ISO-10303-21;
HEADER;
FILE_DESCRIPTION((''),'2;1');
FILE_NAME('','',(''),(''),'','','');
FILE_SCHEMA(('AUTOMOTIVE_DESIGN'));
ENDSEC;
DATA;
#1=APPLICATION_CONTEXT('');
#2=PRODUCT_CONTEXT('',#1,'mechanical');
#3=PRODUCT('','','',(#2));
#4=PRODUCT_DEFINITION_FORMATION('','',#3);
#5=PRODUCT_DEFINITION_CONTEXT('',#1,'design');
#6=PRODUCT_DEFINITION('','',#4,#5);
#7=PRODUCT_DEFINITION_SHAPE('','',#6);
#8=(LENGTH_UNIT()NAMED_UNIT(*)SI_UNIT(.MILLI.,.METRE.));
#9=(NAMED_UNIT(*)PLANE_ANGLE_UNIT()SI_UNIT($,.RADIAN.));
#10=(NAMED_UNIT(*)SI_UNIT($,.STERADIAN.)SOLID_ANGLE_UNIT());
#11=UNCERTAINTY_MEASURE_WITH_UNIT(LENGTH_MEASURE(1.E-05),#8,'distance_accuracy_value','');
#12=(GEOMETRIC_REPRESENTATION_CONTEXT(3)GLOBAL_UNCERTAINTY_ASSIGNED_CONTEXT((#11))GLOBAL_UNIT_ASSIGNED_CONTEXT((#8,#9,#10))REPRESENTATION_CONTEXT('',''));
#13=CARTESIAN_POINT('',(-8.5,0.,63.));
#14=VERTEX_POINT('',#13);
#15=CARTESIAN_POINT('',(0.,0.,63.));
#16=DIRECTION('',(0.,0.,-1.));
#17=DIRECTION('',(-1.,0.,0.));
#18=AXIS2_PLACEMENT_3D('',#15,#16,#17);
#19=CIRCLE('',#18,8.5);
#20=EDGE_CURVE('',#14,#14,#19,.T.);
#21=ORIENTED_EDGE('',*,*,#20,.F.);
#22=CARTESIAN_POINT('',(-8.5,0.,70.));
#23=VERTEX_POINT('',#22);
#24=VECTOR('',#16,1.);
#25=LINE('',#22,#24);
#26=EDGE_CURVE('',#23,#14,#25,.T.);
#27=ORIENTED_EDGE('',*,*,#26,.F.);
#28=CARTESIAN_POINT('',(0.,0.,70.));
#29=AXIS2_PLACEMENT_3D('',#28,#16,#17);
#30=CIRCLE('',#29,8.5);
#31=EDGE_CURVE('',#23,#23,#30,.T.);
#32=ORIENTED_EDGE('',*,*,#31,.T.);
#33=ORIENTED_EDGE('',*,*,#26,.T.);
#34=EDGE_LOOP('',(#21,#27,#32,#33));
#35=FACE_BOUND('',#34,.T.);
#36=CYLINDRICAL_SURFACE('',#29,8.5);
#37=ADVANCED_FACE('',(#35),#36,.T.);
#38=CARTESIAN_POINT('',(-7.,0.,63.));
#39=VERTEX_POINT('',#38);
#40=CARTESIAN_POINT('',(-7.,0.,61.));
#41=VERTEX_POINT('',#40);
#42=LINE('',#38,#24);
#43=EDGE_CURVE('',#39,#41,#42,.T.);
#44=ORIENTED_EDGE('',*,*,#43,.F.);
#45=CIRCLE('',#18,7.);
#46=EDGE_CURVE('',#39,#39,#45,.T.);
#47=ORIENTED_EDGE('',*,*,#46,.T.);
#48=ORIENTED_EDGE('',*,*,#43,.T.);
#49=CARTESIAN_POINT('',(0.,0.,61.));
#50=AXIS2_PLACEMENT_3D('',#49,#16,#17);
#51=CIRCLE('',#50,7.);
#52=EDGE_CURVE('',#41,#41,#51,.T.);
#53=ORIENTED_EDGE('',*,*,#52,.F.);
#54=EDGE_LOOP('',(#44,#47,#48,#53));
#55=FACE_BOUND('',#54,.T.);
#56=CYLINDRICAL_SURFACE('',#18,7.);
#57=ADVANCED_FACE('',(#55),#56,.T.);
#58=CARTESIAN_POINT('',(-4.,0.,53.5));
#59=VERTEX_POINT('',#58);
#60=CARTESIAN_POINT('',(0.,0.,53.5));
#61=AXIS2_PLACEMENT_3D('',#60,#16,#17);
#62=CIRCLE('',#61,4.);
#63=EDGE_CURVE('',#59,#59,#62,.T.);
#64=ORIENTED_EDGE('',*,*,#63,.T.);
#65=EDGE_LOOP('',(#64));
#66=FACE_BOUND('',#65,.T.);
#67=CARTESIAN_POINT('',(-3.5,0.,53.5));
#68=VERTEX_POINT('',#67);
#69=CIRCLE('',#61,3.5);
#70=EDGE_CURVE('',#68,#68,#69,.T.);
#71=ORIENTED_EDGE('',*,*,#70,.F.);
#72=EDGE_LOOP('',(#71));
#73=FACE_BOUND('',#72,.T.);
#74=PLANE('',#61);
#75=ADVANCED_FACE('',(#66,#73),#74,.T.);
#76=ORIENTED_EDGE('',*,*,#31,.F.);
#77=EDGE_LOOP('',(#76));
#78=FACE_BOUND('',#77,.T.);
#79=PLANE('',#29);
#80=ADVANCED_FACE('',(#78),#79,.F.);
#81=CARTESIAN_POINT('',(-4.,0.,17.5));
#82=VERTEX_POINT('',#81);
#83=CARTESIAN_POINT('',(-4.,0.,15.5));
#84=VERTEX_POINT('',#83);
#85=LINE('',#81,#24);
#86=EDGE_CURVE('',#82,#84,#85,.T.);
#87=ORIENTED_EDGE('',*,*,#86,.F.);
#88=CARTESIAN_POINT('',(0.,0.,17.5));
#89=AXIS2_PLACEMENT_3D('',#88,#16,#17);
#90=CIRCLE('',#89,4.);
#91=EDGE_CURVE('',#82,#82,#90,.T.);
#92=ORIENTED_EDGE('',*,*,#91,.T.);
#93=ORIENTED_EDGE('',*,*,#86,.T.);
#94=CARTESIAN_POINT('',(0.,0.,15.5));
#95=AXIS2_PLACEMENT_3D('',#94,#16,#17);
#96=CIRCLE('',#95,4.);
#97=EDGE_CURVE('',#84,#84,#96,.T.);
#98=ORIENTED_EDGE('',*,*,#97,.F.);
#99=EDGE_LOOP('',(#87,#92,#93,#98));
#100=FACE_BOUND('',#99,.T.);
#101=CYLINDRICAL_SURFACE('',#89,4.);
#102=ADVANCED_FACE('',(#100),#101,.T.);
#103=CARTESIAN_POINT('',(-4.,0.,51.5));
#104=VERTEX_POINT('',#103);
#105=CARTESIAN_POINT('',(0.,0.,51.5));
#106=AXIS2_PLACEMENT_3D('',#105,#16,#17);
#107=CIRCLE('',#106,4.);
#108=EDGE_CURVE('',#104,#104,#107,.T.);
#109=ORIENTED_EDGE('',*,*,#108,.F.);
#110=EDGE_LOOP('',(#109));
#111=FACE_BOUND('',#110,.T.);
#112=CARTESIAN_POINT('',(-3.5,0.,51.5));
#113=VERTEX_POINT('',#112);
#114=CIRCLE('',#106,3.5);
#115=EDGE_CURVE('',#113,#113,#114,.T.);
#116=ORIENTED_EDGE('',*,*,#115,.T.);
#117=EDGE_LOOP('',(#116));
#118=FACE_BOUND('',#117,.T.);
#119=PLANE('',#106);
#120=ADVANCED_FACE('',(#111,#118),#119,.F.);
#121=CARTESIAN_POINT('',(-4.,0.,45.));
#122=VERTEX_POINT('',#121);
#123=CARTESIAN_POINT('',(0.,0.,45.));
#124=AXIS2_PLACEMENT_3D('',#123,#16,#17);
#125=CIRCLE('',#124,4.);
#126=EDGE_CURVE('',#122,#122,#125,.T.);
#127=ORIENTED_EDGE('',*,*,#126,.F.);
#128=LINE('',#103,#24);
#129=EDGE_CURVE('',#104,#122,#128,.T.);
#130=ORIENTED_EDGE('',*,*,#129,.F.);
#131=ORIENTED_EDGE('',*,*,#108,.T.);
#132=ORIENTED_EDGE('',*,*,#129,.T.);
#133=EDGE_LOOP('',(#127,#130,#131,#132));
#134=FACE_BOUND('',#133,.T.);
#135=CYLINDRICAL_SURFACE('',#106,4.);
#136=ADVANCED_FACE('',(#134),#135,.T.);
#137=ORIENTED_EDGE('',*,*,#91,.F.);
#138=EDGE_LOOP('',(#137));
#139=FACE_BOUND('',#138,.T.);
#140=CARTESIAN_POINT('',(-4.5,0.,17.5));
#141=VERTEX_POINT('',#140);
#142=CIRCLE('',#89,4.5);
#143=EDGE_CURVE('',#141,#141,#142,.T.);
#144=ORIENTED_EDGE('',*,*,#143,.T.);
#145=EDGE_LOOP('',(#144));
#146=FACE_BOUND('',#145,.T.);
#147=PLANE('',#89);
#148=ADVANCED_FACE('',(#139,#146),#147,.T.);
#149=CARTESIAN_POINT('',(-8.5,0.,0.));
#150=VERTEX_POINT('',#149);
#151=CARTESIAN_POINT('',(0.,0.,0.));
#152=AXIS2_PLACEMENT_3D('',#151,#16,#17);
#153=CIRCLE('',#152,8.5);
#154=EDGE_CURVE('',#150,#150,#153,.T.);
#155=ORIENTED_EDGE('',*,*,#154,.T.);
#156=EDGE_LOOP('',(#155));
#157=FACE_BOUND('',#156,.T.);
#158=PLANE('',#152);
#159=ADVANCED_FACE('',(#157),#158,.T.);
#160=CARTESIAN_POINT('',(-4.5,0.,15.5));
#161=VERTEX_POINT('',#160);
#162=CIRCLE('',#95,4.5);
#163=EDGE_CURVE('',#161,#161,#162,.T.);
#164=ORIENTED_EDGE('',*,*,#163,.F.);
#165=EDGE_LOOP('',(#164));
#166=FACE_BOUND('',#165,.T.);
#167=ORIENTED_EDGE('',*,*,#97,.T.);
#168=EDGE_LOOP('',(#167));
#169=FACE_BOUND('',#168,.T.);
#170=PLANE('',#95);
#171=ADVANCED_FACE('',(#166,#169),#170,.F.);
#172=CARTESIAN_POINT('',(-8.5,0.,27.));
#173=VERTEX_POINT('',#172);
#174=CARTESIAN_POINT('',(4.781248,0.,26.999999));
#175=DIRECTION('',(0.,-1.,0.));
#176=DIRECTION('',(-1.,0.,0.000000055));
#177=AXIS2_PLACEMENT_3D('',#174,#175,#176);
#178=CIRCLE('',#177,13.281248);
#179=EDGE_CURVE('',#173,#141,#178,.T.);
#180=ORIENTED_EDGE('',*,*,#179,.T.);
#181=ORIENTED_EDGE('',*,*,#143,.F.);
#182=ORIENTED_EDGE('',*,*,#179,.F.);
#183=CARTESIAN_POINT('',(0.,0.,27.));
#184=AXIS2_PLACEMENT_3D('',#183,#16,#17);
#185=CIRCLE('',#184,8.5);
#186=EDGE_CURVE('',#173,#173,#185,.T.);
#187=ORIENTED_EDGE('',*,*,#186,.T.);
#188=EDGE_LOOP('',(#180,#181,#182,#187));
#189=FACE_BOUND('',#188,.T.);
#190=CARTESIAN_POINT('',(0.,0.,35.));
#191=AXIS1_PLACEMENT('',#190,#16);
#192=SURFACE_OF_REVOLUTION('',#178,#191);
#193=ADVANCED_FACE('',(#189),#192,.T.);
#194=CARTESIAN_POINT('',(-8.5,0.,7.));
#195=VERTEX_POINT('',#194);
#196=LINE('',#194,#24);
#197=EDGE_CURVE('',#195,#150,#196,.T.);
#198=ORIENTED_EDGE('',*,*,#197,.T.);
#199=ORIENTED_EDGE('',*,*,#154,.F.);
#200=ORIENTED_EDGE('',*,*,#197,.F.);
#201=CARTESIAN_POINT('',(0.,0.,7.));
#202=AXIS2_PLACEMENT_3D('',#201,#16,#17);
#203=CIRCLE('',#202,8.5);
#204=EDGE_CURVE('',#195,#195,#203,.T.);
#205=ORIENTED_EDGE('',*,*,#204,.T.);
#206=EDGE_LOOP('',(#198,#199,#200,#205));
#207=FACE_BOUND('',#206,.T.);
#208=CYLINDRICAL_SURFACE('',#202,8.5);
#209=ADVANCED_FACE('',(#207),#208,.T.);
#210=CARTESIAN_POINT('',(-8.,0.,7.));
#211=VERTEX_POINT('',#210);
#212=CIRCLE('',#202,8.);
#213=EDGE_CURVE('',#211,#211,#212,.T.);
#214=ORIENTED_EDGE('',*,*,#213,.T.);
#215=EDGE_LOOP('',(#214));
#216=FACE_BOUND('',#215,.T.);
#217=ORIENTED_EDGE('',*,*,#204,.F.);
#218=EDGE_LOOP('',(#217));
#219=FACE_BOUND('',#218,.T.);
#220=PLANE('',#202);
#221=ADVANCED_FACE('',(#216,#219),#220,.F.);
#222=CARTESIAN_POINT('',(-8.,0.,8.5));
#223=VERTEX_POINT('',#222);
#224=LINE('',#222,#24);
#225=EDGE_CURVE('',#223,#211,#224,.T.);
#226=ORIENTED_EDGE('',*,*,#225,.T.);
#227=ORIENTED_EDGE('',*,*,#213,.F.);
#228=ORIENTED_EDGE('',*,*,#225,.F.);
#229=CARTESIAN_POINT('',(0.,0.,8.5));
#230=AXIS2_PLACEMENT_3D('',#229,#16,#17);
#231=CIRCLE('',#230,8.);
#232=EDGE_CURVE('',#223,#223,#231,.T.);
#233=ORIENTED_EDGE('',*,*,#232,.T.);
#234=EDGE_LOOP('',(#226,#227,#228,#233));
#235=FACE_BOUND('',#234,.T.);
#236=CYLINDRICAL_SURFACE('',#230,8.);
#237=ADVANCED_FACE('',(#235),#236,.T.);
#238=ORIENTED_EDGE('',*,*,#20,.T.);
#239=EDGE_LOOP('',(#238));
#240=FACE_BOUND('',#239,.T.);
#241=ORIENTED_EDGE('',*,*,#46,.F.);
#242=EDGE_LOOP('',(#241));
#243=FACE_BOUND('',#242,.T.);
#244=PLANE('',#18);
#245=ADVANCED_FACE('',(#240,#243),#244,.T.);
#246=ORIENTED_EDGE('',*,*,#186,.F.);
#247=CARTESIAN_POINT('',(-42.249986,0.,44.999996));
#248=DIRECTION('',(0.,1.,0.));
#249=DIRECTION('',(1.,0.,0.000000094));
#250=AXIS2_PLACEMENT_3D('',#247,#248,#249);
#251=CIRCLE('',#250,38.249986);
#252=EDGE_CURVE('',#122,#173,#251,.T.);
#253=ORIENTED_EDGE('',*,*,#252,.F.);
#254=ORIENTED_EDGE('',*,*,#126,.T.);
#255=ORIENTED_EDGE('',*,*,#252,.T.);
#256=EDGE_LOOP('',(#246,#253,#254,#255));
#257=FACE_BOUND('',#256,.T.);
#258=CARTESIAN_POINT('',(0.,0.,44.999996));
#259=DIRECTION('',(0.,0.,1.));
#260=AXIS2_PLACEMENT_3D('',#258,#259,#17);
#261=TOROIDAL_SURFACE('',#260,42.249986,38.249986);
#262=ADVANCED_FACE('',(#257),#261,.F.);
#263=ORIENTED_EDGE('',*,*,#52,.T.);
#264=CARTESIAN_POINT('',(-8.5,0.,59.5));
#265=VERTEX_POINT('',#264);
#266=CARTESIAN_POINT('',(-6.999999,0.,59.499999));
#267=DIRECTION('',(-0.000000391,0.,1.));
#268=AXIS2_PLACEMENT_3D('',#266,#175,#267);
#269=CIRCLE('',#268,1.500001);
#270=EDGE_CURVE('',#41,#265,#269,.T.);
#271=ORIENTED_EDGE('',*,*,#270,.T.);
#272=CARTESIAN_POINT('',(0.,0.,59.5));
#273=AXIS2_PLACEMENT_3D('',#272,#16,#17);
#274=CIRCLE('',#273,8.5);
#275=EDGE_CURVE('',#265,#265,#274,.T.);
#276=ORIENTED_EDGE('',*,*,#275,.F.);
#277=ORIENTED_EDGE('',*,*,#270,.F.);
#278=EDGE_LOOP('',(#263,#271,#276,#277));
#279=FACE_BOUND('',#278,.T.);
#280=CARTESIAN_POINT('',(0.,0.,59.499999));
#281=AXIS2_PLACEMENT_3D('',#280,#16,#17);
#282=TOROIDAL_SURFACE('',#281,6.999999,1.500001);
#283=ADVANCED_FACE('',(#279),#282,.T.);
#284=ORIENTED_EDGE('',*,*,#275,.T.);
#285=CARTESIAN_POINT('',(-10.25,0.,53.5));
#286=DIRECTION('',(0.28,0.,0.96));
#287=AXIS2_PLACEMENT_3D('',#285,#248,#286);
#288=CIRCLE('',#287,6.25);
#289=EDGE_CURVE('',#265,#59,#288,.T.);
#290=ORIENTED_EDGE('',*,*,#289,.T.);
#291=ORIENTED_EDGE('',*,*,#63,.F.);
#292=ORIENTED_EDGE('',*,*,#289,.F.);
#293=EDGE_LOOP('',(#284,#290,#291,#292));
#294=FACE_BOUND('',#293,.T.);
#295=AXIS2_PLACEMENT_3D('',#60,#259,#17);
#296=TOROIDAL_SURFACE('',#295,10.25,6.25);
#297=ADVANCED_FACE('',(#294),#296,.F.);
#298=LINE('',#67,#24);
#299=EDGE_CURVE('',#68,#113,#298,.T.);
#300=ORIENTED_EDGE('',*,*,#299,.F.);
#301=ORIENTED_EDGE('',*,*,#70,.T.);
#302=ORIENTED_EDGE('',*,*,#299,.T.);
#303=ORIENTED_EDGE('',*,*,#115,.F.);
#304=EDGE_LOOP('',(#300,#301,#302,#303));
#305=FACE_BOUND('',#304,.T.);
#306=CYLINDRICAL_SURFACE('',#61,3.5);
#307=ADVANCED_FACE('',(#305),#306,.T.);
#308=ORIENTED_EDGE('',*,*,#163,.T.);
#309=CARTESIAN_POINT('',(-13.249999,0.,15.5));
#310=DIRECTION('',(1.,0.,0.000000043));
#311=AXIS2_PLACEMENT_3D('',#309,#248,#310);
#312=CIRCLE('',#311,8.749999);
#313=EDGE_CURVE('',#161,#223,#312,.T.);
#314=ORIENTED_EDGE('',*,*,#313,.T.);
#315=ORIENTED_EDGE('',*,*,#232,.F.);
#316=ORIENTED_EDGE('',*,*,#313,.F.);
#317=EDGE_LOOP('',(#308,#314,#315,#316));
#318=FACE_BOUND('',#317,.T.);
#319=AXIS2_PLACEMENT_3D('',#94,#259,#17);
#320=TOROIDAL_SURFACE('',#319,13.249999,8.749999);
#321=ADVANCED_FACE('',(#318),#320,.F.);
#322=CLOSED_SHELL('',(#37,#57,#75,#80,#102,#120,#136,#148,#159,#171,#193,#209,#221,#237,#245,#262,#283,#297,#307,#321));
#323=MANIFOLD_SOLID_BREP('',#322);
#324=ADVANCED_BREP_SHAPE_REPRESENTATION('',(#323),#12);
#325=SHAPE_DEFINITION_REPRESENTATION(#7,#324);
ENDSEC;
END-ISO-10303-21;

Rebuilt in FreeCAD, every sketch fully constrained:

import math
import FreeCAD as App
import Part
import Sketcher

doc = App.newDocument("Part")
params = doc.addObject("Spreadsheet::Sheet", "Params")
for row, (alias, value) in enumerate([
    ("sketch1_radius", "1.500001 mm"),
    ("sketch1_height", "70 mm"),
    ("sketch1_height2", "7 mm"),
    ("sketch1_height3", "2 mm"),
    ("sketch1_radius2", "6.25 mm"),
    ("revolution_angle", "360 deg"),
], start=1):
    params.set(f"A{row}", alias)
    params.set(f"B{row}", "=" + value)
    params.setAlias(f"B{row}", alias)

body = doc.addObject("PartDesign::Body", "Body")

# Sketch on XZ plane
sketch1 = doc.addObject("Sketcher::SketchObject", "Sketch")
body.addObject(sketch1)
sketch1.AttachmentSupport = (doc.XZ_Plane, [""])
sketch1.MapMode = "FlatFace"
sketch1.addGeometry(Part.LineSegment(App.Vector(-8.5, 0, 0), App.Vector(0, 0, 0)), False)
sketch1.addGeometry(Part.LineSegment(App.Vector(0, 0, 0), App.Vector(0, 70, 0)), False)
sketch1.addGeometry(Part.LineSegment(App.Vector(0, 70, 0), App.Vector(-8.5, 70, 0)), False)
sketch1.addGeometry(Part.LineSegment(App.Vector(-8.5, 70, 0), App.Vector(-8.5, 63, 0)), False)
sketch1.addGeometry(Part.LineSegment(App.Vector(-8.5, 63, 0), App.Vector(-7, 63, 0)), False)
sketch1.addGeometry(Part.LineSegment(App.Vector(-7, 63, 0), App.Vector(-7, 61, 0)), False)
sketch1.addGeometry(Part.ArcOfCircle(Part.Circle(App.Vector(-7, 59.5, 0), App.Vector(0, 0, 1), 1.5), math.radians(90), math.radians(180)), False)
sketch1.addGeometry(Part.ArcOfCircle(Part.Circle(App.Vector(-10.2, 53.5, 0), App.Vector(0, 0, 1), 6.2), math.radians(0), math.radians(74)), False)
sketch1.addGeometry(Part.LineSegment(App.Vector(-4, 53.5, 0), App.Vector(-3.5, 53.5, 0)), False)
sketch1.addGeometry(Part.LineSegment(App.Vector(-3.5, 53.5, 0), App.Vector(-3.5, 51.5, 0)), False)
sketch1.addGeometry(Part.LineSegment(App.Vector(-3.5, 51.5, 0), App.Vector(-4, 51.5, 0)), False)
sketch1.addGeometry(Part.LineSegment(App.Vector(-4, 51.5, 0), App.Vector(-4, 45, 0)), False)
sketch1.addGeometry(Part.ArcOfCircle(Part.Circle(App.Vector(-42.2, 45, 0), App.Vector(0, 0, 1), 38.2), math.radians(-28), math.radians(0)), False)
sketch1.addGeometry(Part.ArcOfCircle(Part.Circle(App.Vector(4.8, 27, 0), App.Vector(0, 0, 1), 13.3), math.radians(180), math.radians(226)), False)
sketch1.addGeometry(Part.LineSegment(App.Vector(-4.5, 17.5, 0), App.Vector(-4, 17.5, 0)), False)
sketch1.addGeometry(Part.LineSegment(App.Vector(-4, 17.5, 0), App.Vector(-4, 15.5, 0)), False)
sketch1.addGeometry(Part.LineSegment(App.Vector(-4, 15.5, 0), App.Vector(-4.5, 15.5, 0)), False)
sketch1.addGeometry(Part.ArcOfCircle(Part.Circle(App.Vector(-13.2, 15.5, 0), App.Vector(0, 0, 1), 8.7), math.radians(-53), math.radians(0)), False)
sketch1.addGeometry(Part.LineSegment(App.Vector(-8, 8.5, 0), App.Vector(-8, 7, 0)), False)
sketch1.addGeometry(Part.LineSegment(App.Vector(-8, 7, 0), App.Vector(-8.5, 7, 0)), False)
sketch1.addGeometry(Part.LineSegment(App.Vector(-8.5, 7, 0), App.Vector(-8.5, 0, 0)), False)
sketch1.addConstraint(Sketcher.Constraint("Coincident", 0, 2, 1, 1))
sketch1.addConstraint(Sketcher.Constraint("Coincident", 1, 2, 2, 1))
sketch1.addConstraint(Sketcher.Constraint("Coincident", 2, 2, 3, 1))
sketch1.addConstraint(Sketcher.Constraint("Coincident", 3, 2, 4, 1))
sketch1.addConstraint(Sketcher.Constraint("Coincident", 4, 2, 5, 1))
sketch1.addConstraint(Sketcher.Constraint("Coincident", 5, 2, 6, 1))
sketch1.addConstraint(Sketcher.Constraint("Coincident", 6, 2, 7, 2))
sketch1.addConstraint(Sketcher.Constraint("Coincident", 7, 1, 8, 1))
sketch1.addConstraint(Sketcher.Constraint("Coincident", 8, 2, 9, 1))
sketch1.addConstraint(Sketcher.Constraint("Coincident", 9, 2, 10, 1))
sketch1.addConstraint(Sketcher.Constraint("Coincident", 10, 2, 11, 1))
sketch1.addConstraint(Sketcher.Constraint("Tangent", 11, 2, 12, 2))
sketch1.addConstraint(Sketcher.Constraint("Coincident", 12, 1, 13, 1))
sketch1.addConstraint(Sketcher.Constraint("Coincident", 13, 2, 14, 1))
sketch1.addConstraint(Sketcher.Constraint("Coincident", 14, 2, 15, 1))
sketch1.addConstraint(Sketcher.Constraint("Coincident", 15, 2, 16, 1))
sketch1.addConstraint(Sketcher.Constraint("Coincident", 16, 2, 17, 2))
sketch1.addConstraint(Sketcher.Constraint("Coincident", 17, 1, 18, 1))
sketch1.addConstraint(Sketcher.Constraint("Coincident", 18, 2, 19, 1))
sketch1.addConstraint(Sketcher.Constraint("Coincident", 19, 2, 20, 1))
sketch1.addConstraint(Sketcher.Constraint("Coincident", 20, 2, 0, 1))
sketch1.addConstraint(Sketcher.Constraint("Horizontal", 0))
sketch1.addConstraint(Sketcher.Constraint("Vertical", 1))
sketch1.addConstraint(Sketcher.Constraint("Horizontal", 2))
sketch1.addConstraint(Sketcher.Constraint("Vertical", 3))
sketch1.addConstraint(Sketcher.Constraint("Horizontal", 4))
sketch1.addConstraint(Sketcher.Constraint("Vertical", 5))
sketch1.addConstraint(Sketcher.Constraint("Horizontal", 8))
sketch1.addConstraint(Sketcher.Constraint("Vertical", 9))
sketch1.addConstraint(Sketcher.Constraint("Horizontal", 10))
sketch1.addConstraint(Sketcher.Constraint("Vertical", 11))
sketch1.addConstraint(Sketcher.Constraint("Horizontal", 14))
sketch1.addConstraint(Sketcher.Constraint("Vertical", 15))
sketch1.addConstraint(Sketcher.Constraint("Horizontal", 16))
sketch1.addConstraint(Sketcher.Constraint("Vertical", 18))
sketch1.addConstraint(Sketcher.Constraint("Horizontal", 19))
sketch1.addConstraint(Sketcher.Constraint("Vertical", 20))
sketch1.addConstraint(Sketcher.Constraint("Coincident", 0, 2, -1, 1))
sketch1.addConstraint(Sketcher.Constraint("Horizontal", 13, 3, 12, 1))
sketch1.addConstraint(Sketcher.Constraint("Horizontal", 17, 3, 15, 2))
sketch1.addConstraint(Sketcher.Constraint("Vertical", 6, 3, 4, 2))
sketch1.addConstraint(Sketcher.Constraint("Vertical", 3, 2, 6, 2))
sketch1.addConstraint(Sketcher.Constraint("Vertical", 7, 1, 10, 2))
sketch1.addConstraint(Sketcher.Constraint("Vertical", 6, 2, 12, 1))
sketch1.addConstraint(Sketcher.Constraint("Vertical", 11, 2, 14, 2))
sketch1.addConstraint(Sketcher.Constraint("Vertical", 13, 2, 16, 2))
sketch1.addConstraint(Sketcher.Constraint("Vertical", 12, 1, 19, 2))
sketch1.addConstraint(Sketcher.Constraint("Equal", 10, 14))
sketch1.addConstraint(Sketcher.Constraint("Equal", 16, 19))
sketch1.addConstraint(Sketcher.Constraint("Equal", 5, 9))
sketch1.addConstraint(Sketcher.Constraint("Equal", 9, 15))
sketch1.addConstraint(Sketcher.Constraint("Equal", 4, 18))
sketch1.addConstraint(Sketcher.Constraint("Equal", 3, 20))
sketch1.addConstraint(Sketcher.Constraint("Radius", 6, 1.500001))
sketch1.addConstraint(Sketcher.Constraint("DistanceY", 1, 1, 1, 2, 70.0))
sketch1.addConstraint(Sketcher.Constraint("DistanceY", 3, 2, 3, 1, 7.0))
sketch1.addConstraint(Sketcher.Constraint("DistanceY", 5, 2, 5, 1, 2.0))
sketch1.addConstraint(Sketcher.Constraint("Radius", 7, 6.25))
sketch1.addConstraint(Sketcher.Constraint("Radius", 17, 8.749999))
sketch1.addConstraint(Sketcher.Constraint("DistanceX", 0, 1, 0, 2, 8.5))
sketch1.addConstraint(Sketcher.Constraint("DistanceX", 8, 1, 8, 2, 0.5))
sketch1.addConstraint(Sketcher.Constraint("DistanceY", 11, 2, 11, 1, 6.5))
sketch1.addConstraint(Sketcher.Constraint("DistanceY", -1, 1, 13, 3, 26.999999))
sketch1.addConstraint(Sketcher.Constraint("DistanceX", 7, 1, -1, 1, 4.0))
sketch1.addConstraint(Sketcher.Constraint("DistanceY", -1, 1, 11, 2, 45.0))
sketch1.addConstraint(Sketcher.Constraint("DistanceY", 7, 3, 6, 3, 5.999999))
sketch1.setExpression("Constraints[53]", "Params.sketch1_radius")
sketch1.setExpression("Constraints[54]", "Params.sketch1_height")
sketch1.setExpression("Constraints[55]", "Params.sketch1_height2")
sketch1.setExpression("Constraints[56]", "Params.sketch1_height3")
sketch1.setExpression("Constraints[57]", "Params.sketch1_radius2")
revolution = doc.addObject("PartDesign::Revolution", "Revolution")
body.addObject(revolution)
revolution.Profile = sketch1
revolution.ReferenceAxis = (sketch1, ["V_Axis"])
revolution.setExpression("Angle", "Params.revolution_angle")

doc.recompute()
